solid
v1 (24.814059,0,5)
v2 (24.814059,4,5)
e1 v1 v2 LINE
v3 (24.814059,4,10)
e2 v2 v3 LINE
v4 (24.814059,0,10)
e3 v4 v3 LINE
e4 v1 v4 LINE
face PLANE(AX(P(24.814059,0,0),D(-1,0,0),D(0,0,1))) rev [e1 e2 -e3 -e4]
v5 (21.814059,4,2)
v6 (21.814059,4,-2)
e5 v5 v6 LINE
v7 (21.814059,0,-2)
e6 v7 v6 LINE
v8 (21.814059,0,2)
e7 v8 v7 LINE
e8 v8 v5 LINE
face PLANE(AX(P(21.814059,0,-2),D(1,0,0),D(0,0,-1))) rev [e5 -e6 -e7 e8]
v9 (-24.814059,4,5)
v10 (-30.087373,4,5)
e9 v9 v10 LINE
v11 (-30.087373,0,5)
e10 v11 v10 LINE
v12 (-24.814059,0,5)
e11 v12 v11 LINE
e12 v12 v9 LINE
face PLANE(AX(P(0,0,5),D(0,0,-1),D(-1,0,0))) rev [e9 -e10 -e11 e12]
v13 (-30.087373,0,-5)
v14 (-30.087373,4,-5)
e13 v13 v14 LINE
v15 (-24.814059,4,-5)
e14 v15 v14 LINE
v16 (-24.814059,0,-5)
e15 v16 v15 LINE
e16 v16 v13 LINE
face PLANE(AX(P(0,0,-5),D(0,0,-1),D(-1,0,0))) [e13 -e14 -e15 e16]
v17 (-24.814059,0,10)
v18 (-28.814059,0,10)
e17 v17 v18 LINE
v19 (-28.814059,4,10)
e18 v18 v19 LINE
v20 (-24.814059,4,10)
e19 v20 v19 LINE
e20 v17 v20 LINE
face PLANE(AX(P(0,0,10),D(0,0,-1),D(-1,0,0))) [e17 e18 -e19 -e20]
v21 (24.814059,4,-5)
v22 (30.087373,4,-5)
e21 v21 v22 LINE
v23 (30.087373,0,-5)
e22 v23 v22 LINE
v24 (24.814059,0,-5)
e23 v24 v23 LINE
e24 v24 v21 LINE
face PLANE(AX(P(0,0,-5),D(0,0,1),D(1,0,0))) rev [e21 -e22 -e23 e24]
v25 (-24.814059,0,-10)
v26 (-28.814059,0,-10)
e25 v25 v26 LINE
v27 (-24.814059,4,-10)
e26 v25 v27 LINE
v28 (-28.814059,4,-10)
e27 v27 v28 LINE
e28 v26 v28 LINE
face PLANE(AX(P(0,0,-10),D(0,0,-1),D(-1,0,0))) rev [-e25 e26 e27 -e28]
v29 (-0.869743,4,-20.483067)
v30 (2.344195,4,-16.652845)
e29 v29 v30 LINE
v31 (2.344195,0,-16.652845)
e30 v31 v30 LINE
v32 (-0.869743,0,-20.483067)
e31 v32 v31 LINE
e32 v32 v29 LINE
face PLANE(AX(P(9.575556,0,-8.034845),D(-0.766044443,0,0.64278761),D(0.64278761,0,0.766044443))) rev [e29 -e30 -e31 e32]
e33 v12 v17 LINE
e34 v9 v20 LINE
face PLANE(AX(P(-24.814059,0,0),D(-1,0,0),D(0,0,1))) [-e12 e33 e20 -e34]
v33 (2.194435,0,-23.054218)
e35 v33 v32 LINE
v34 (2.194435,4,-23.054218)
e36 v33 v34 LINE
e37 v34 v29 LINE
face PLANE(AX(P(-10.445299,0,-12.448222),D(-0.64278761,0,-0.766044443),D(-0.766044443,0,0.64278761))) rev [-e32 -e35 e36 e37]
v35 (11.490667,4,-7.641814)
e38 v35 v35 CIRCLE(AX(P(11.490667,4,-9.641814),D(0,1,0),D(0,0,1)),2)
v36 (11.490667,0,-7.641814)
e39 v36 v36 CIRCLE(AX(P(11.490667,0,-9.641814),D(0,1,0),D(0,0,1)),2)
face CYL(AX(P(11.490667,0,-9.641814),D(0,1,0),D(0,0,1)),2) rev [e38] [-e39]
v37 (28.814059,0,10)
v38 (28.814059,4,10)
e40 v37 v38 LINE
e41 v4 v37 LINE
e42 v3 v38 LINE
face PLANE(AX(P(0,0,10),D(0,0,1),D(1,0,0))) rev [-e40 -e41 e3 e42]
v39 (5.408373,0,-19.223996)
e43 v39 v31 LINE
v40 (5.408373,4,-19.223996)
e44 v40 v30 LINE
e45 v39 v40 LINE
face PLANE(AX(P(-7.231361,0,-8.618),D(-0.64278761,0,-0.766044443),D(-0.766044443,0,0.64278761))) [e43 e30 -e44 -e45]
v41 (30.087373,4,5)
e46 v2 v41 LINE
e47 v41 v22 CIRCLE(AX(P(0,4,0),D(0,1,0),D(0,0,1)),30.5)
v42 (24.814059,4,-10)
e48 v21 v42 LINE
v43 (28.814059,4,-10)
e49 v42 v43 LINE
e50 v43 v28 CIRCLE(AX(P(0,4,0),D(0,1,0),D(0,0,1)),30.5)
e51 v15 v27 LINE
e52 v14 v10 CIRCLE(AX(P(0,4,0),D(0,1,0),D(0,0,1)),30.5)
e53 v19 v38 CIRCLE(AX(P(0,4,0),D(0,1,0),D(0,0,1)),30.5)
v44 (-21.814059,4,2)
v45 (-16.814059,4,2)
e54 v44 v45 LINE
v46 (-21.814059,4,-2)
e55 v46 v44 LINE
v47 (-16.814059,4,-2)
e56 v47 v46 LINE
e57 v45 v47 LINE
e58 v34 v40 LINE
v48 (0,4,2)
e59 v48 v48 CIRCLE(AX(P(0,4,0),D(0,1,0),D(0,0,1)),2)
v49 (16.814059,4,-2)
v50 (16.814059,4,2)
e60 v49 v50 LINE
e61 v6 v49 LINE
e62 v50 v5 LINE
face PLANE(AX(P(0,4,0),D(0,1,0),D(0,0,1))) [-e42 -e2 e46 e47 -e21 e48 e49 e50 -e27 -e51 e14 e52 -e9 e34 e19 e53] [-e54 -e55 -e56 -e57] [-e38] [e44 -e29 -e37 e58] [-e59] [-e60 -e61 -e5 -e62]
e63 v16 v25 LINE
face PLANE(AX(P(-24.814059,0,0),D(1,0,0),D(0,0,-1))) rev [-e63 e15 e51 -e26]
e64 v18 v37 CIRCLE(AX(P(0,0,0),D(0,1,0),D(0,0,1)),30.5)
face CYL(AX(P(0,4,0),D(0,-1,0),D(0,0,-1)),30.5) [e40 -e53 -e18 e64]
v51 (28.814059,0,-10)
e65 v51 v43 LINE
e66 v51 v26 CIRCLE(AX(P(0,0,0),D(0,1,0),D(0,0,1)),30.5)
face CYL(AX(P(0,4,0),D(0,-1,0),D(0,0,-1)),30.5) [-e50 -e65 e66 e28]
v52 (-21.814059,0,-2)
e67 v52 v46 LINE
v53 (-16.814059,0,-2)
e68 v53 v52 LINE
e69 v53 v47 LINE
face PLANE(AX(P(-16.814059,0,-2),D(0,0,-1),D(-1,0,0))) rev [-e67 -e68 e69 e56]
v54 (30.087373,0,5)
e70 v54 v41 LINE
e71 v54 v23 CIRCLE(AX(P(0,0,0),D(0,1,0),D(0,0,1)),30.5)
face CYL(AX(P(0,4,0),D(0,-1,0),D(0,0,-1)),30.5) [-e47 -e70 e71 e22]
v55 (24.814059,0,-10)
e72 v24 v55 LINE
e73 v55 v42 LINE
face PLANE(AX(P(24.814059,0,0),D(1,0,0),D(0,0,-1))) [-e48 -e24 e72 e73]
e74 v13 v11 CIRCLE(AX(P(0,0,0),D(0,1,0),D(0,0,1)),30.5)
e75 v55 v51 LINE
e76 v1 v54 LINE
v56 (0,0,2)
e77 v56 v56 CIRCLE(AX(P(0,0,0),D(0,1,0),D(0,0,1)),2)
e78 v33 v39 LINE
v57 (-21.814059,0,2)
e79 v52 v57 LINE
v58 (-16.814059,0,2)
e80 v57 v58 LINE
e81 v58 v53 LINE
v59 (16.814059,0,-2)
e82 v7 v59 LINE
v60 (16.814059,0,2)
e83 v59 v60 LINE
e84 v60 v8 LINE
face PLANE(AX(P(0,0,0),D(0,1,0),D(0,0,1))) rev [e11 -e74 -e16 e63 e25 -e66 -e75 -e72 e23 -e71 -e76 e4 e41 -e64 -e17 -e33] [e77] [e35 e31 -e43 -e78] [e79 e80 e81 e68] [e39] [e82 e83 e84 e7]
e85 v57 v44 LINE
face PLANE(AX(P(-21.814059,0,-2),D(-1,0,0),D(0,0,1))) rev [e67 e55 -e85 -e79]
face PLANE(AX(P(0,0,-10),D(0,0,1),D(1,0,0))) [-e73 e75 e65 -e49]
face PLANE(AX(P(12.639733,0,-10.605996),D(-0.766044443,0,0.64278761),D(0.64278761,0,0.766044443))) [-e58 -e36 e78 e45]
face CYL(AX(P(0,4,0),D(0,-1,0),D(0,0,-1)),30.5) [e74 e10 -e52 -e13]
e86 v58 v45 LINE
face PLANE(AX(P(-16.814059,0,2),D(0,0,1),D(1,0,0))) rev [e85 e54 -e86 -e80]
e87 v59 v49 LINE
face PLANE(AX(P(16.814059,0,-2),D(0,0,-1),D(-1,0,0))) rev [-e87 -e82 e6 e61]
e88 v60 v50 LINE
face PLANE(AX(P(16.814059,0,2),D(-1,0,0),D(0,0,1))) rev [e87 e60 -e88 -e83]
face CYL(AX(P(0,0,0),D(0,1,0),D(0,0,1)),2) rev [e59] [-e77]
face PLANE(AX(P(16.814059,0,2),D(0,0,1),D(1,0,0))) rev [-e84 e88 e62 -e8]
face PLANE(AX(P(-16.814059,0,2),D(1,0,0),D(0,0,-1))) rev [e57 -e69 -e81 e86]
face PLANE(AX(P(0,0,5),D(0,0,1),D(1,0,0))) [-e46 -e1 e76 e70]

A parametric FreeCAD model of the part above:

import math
import FreeCAD as App
import Part
import Sketcher
from FreeCAD import Vector
Q = App.Units.Quantity


def add_polygon(sketch, points):
    """Adds a closed chain of lines whose ends are joined by coincident constraints."""
    first, n = sketch.GeometryCount, len(points)
    for a, b in zip(points, points[1:] + points[:1]):
        sketch.addGeometry(Part.LineSegment(App.Vector(*a, 0), App.Vector(*b, 0)), False)
    for i in range(n):
        sketch.addConstraint(Sketcher.Constraint("Coincident", first + i, 2, first + (i + 1) % n, 1))

doc = App.newDocument("Part")
params = doc.addObject("Spreadsheet::Sheet", "Params")
for row, (alias, value) in enumerate([
    ("sketch1_diameter", "61 mm"),
    ("pad1_length", "4 mm"),
    ("sketch2_diameter", "4 mm"),
    ("pocket1_length", "4 mm"),
    ("sketch3_radius", "30.5 mm"),
    ("sketch3_width", "4 mm"),
    ("sketch3_height", "5 mm"),
    ("pocket2_length", "4 mm"),
    ("sketch4_width", "5 mm"),
    ("sketch4_height", "4 mm"),
    ("pocket3_length", "4 mm"),
    ("sketch5_diameter", "4 mm"),
    ("sketch5_length", "4 mm"),
    ("sketch5_length2", "5 mm"),
    ("pocket4_length", "4 mm"),
], start=1):
    params.set(f"A{row}", alias)
    params.set(f"B{row}", "=" + value)
    params.setAlias(f"B{row}", alias)

body = doc.addObject("PartDesign::Body", "Body")

# Sketch on XZ plane
sketch1 = body.newObject("Sketcher::SketchObject", "Sketch")
sketch1.AttachmentSupport = (doc.getObject("XZ_Plane"), [""])
sketch1.MapMode = "FlatFace"
sketch1.addGeometry(Part.Circle(Vector(0, 0, 0), Vector(0, 0, 1), 30.5), False)
sketch1.addConstraint([
    Sketcher.Constraint("Coincident", 0, 3, -1, 1),
    Sketcher.Constraint("Diameter", 0, 61.0),
])
sketch1.setExpression("Constraints[1]", "Params.sketch1_diameter")
pad1 = body.newObject("PartDesign::Pad", "Pad")
pad1.Profile = sketch1
pad1.setExpression("Length", "Params.pad1_length")
pad1.Reversed = True

# Sketch on XZ plane
sketch2 = body.newObject("Sketcher::SketchObject", "Sketch001")
sketch2.AttachmentSupport = (doc.getObject("XZ_Plane"), [""])
sketch2.MapMode = "FlatFace"
sketch2.AttachmentOffset = App.Placement(Vector(0, 0, -4), App.Rotation())
sketch2.addGeometry(Part.Circle(Vector(0, 0, 0), Vector(0, 0, 1), 2), False)
sketch2.addConstraint([
    Sketcher.Constraint("Coincident", 0, 3, -1, 1),
    Sketcher.Constraint("Diameter", 0, 4.0),
])
sketch2.setExpression("Constraints[1]", "Params.sketch2_diameter")
pocket1 = body.newObject("PartDesign::Pocket", "Pocket")
pocket1.Profile = sketch2
pocket1.setExpression("Length", "Params.pocket1_length")
pocket1.Reversed = True

# Sketch on XZ plane
sketch3 = body.newObject("Sketcher::SketchObject", "Sketch002")
sketch3.AttachmentSupport = (doc.getObject("XZ_Plane"), [""])
sketch3.MapMode = "FlatFace"
sketch3.addGeometry([
    Part.ArcOfCircle(Part.Circle(Vector(0, 0, 0), Vector(0, 0, 1), 30.5), math.radians(-19.139474), math.radians(-9.435339)),  # 0
    Part.LineSegment(Vector(28.814059, -10, 0), Vector(24.814059, -10, 0)),  # 1
    Part.LineSegment(Vector(24.814059, -10, 0), Vector(24.814059, -5, 0)),  # 2
    Part.LineSegment(Vector(24.814059, -5, 0), Vector(30.087373, -5, 0)),  # 3
    Part.LineSegment(Vector(30.087373, 5, 0), Vector(24.814059, 5, 0)),  # 4
    Part.LineSegment(Vector(24.814059, 5, 0), Vector(24.814059, 10, 0)),  # 5
    Part.LineSegment(Vector(24.814059, 10, 0), Vector(28.814059, 10, 0)),  # 6
    Part.ArcOfCircle(Part.Circle(Vector(0, 0, 0), Vector(0, 0, 1), 30.5), math.radians(9.435339), math.radians(19.139474)),  # 7
    Part.LineSegment(Vector(-24.814059, -5, 0), Vector(-24.814059, -10, 0)),  # 8
    Part.LineSegment(Vector(-24.814059, -10, 0), Vector(-28.814059, -10, 0)),  # 9
    Part.ArcOfCircle(Part.Circle(Vector(0, 0, 0), Vector(0, 0, 1), 30.5), math.radians(-170.564661), math.radians(-160.860526)),  # 10
    Part.LineSegment(Vector(-30.087373, -5, 0), Vector(-24.814059, -5, 0)),  # 11
    Part.LineSegment(Vector(-28.814059, 10, 0), Vector(-24.814059, 10, 0)),  # 12
    Part.LineSegment(Vector(-24.814059, 10, 0), Vector(-24.814059, 5, 0)),  # 13
    Part.LineSegment(Vector(-24.814059, 5, 0), Vector(-30.087373, 5, 0)),  # 14
    Part.ArcOfCircle(Part.Circle(Vector(0, 0, 0), Vector(0, 0, 1), 30.5), math.radians(160.860526), math.radians(170.564661)),  # 15
], False)
sketch3.addConstraint([
    Sketcher.Constraint("Coincident", 0, 1, 1, 1),
    Sketcher.Constraint("Coincident", 1, 2, 2, 1),
    Sketcher.Constraint("Coincident", 2, 2, 3, 1),
    Sketcher.Constraint("Coincident", 3, 2, 0, 2),
    Sketcher.Constraint("Coincident", 4, 2, 5, 1),
    Sketcher.Constraint("Coincident", 5, 2, 6, 1),
    Sketcher.Constraint("Coincident", 6, 2, 7, 2),
    Sketcher.Constraint("Coincident", 7, 1, 4, 1),
    Sketcher.Constraint("Coincident", 8, 2, 9, 1),
    Sketcher.Constraint("Coincident", 9, 2, 10, 2),
    Sketcher.Constraint("Coincident", 10, 1, 11, 1),
    Sketcher.Constraint("Coincident", 11, 2, 8, 1),
    Sketcher.Constraint("Coincident", 12, 2, 13, 1),
    Sketcher.Constraint("Coincident", 13, 2, 14, 1),
    Sketcher.Constraint("Coincident", 14, 2, 15, 2),
    Sketcher.Constraint("Coincident", 15, 1, 12, 1),
    Sketcher.Constraint("Horizontal", 1),
    Sketcher.Constraint("Vertical", 2),
    Sketcher.Constraint("Horizontal", 3),
    Sketcher.Constraint("Horizontal", 4),
    Sketcher.Constraint("Vertical", 5),
    Sketcher.Constraint("Horizontal", 6),
    Sketcher.Constraint("Vertical", 8),
    Sketcher.Constraint("Horizontal", 9),
    Sketcher.Constraint("Horizontal", 11),
    Sketcher.Constraint("Horizontal", 12),
    Sketcher.Constraint("Vertical", 13),
    Sketcher.Constraint("Horizontal", 14),
    Sketcher.Constraint("Coincident", 0, 3, -1, 1),
    Sketcher.Constraint("Coincident", 7, 3, -1, 1),
    Sketcher.Constraint("Coincident", 10, 3, -1, 1),
    Sketcher.Constraint("Coincident", 15, 3, -1, 1),
    Sketcher.Constraint("Equal", 0, 7),
    Sketcher.Constraint("Equal", 7, 10),
    Sketcher.Constraint("Equal", 10, 15),
    Sketcher.Constraint("Symmetric", 5, 2, 8, 2, -1, 1),
    Sketcher.Constraint("Symmetric", 1, 2, 12, 2, -1, 1),
    Sketcher.Constraint("Symmetric", 1, 2, 8, 2, -2),
    Sketcher.Constraint("Horizontal", 3, 2, 10, 1),
    Sketcher.Constraint("Horizontal", 7, 1, 13, 2),
    Sketcher.Constraint("Vertical", 3, 2, 7, 1),
    Sketcher.Constraint("Radius", 0, 30.5),
    Sketcher.Constraint("DistanceX", 1, 2, 1, 1, 4.0),
    Sketcher.Constraint("DistanceY", 2, 1, 2, 2, 5.0),
    Sketcher.Constraint("DistanceY", 0, 1, -1, 1, 10.0),
])
sketch3.setExpression("Constraints[41]", "Params.sketch3_radius")
sketch3.setExpression("Constraints[42]", "Params.sketch3_width")
sketch3.setExpression("Constraints[43]", "Params.sketch3_height")
pocket2 = body.newObject("PartDesign::Pocket", "Pocket001")
pocket2.Profile = sketch3
pocket2.setExpression("Length", "Params.pocket2_length")

# Sketch on XZ plane
sketch4 = body.newObject("Sketcher::SketchObject", "Sketch003")
sketch4.AttachmentSupport = (doc.getObject("XZ_Plane"), [""])
sketch4.MapMode = "FlatFace"
sketch4.AttachmentOffset = App.Placement(Vector(0, 0, -4), App.Rotation())
add_polygon(sketch4, [(-21.814059, -2), (-21.814059, 2), (-16.814059, 2), (-16.814059, -2)])  # lines 0-3
add_polygon(sketch4, [(16.814059, -2), (16.814059, 2), (21.814059, 2), (21.814059, -2)])  # lines 4-7
sketch4.addConstraint([
    Sketcher.Constraint("Vertical", 0),
    Sketcher.Constraint("Horizontal", 1),
    Sketcher.Constraint("Vertical", 2),
    Sketcher.Constraint("Horizontal", 3),
    Sketcher.Constraint("Vertical", 4),
    Sketcher.Constraint("Horizontal", 5),
    Sketcher.Constraint("Vertical", 6),
    Sketcher.Constraint("Horizontal", 7),
    Sketcher.Constraint("Symmetric", 2, 2, 4, 2, -1, 1),
    Sketcher.Constraint("Symmetric", 0, 2, 6, 2, -1, 1),
    Sketcher.Constraint("Horizontal", 1, 2, 4, 2),
    Sketcher.Constraint("DistanceX", 1, 1, 1, 2, 5.0),
    Sketcher.Constraint("DistanceY", 0, 1, 0, 2, 4.0),
    Sketcher.Constraint("DistanceX", 0, 2, -1, 1, 21.814059),
])
sketch4.setExpression("Constraints[19]", "Params.sketch4_width")
sketch4.setExpression("Constraints[20]", "Params.sketch4_height")
pocket3 = body.newObject("PartDesign::Pocket", "Pocket002")
pocket3.Profile = sketch4
pocket3.setExpression("Length", "Params.pocket3_length")
pocket3.Reversed = True

# Sketch on XZ plane
sketch5 = body.newObject("Sketcher::SketchObject", "Sketch004")
sketch5.AttachmentSupport = (doc.getObject("XZ_Plane"), [""])
sketch5.MapMode = "FlatFace"
sketch5.AttachmentOffset = App.Placement(Vector(0, 0, -4), App.Rotation())
sketch5.addGeometry(Part.Circle(Vector(11.490667, -9.641814, 0), Vector(0, 0, 1), 2), False)  # 0
add_polygon(sketch5, [(2.194435, -23.054218), (-0.869743, -20.483067), (2.344195, -16.652845), (5.408373, -19.223996)])  # lines 1-4
sketch5.addConstraint([
    Sketcher.Constraint("Perpendicular", 1, 2),
    Sketcher.Constraint("Perpendicular", 2, 3),
    Sketcher.Constraint("Perpendicular", 3, 4),
    Sketcher.Constraint("Diameter", 0, 4.0),
    Sketcher.Constraint("Angle", 1, Q("140 deg")),
    Sketcher.Constraint("Distance", 1, 4.0),
    Sketcher.Constraint("Distance", 2, 5.0),
    Sketcher.Constraint("DistanceX", 1, 2, 0, 3, 12.36041),
    Sketcher.Constraint("DistanceY", 2, 2, 0, 3, 7.011031),
    Sketcher.Constraint("DistanceX", -1, 1, 0, 3, 11.490667),
    Sketcher.Constraint("DistanceY", 0, 3, -1, 1, 9.641814),
])
sketch5.setExpression("Constraints[7]", "Params.sketch5_diameter")
sketch5.setExpression("Constraints[9]", "Params.sketch5_length")
sketch5.setExpression("Constraints[10]", "Params.sketch5_length2")
pocket4 = body.newObject("PartDesign::Pocket", "Pocket003")
pocket4.Profile = sketch5
pocket4.setExpression("Length", "Params.pocket4_length")
pocket4.Reversed = True

doc.recompute()
